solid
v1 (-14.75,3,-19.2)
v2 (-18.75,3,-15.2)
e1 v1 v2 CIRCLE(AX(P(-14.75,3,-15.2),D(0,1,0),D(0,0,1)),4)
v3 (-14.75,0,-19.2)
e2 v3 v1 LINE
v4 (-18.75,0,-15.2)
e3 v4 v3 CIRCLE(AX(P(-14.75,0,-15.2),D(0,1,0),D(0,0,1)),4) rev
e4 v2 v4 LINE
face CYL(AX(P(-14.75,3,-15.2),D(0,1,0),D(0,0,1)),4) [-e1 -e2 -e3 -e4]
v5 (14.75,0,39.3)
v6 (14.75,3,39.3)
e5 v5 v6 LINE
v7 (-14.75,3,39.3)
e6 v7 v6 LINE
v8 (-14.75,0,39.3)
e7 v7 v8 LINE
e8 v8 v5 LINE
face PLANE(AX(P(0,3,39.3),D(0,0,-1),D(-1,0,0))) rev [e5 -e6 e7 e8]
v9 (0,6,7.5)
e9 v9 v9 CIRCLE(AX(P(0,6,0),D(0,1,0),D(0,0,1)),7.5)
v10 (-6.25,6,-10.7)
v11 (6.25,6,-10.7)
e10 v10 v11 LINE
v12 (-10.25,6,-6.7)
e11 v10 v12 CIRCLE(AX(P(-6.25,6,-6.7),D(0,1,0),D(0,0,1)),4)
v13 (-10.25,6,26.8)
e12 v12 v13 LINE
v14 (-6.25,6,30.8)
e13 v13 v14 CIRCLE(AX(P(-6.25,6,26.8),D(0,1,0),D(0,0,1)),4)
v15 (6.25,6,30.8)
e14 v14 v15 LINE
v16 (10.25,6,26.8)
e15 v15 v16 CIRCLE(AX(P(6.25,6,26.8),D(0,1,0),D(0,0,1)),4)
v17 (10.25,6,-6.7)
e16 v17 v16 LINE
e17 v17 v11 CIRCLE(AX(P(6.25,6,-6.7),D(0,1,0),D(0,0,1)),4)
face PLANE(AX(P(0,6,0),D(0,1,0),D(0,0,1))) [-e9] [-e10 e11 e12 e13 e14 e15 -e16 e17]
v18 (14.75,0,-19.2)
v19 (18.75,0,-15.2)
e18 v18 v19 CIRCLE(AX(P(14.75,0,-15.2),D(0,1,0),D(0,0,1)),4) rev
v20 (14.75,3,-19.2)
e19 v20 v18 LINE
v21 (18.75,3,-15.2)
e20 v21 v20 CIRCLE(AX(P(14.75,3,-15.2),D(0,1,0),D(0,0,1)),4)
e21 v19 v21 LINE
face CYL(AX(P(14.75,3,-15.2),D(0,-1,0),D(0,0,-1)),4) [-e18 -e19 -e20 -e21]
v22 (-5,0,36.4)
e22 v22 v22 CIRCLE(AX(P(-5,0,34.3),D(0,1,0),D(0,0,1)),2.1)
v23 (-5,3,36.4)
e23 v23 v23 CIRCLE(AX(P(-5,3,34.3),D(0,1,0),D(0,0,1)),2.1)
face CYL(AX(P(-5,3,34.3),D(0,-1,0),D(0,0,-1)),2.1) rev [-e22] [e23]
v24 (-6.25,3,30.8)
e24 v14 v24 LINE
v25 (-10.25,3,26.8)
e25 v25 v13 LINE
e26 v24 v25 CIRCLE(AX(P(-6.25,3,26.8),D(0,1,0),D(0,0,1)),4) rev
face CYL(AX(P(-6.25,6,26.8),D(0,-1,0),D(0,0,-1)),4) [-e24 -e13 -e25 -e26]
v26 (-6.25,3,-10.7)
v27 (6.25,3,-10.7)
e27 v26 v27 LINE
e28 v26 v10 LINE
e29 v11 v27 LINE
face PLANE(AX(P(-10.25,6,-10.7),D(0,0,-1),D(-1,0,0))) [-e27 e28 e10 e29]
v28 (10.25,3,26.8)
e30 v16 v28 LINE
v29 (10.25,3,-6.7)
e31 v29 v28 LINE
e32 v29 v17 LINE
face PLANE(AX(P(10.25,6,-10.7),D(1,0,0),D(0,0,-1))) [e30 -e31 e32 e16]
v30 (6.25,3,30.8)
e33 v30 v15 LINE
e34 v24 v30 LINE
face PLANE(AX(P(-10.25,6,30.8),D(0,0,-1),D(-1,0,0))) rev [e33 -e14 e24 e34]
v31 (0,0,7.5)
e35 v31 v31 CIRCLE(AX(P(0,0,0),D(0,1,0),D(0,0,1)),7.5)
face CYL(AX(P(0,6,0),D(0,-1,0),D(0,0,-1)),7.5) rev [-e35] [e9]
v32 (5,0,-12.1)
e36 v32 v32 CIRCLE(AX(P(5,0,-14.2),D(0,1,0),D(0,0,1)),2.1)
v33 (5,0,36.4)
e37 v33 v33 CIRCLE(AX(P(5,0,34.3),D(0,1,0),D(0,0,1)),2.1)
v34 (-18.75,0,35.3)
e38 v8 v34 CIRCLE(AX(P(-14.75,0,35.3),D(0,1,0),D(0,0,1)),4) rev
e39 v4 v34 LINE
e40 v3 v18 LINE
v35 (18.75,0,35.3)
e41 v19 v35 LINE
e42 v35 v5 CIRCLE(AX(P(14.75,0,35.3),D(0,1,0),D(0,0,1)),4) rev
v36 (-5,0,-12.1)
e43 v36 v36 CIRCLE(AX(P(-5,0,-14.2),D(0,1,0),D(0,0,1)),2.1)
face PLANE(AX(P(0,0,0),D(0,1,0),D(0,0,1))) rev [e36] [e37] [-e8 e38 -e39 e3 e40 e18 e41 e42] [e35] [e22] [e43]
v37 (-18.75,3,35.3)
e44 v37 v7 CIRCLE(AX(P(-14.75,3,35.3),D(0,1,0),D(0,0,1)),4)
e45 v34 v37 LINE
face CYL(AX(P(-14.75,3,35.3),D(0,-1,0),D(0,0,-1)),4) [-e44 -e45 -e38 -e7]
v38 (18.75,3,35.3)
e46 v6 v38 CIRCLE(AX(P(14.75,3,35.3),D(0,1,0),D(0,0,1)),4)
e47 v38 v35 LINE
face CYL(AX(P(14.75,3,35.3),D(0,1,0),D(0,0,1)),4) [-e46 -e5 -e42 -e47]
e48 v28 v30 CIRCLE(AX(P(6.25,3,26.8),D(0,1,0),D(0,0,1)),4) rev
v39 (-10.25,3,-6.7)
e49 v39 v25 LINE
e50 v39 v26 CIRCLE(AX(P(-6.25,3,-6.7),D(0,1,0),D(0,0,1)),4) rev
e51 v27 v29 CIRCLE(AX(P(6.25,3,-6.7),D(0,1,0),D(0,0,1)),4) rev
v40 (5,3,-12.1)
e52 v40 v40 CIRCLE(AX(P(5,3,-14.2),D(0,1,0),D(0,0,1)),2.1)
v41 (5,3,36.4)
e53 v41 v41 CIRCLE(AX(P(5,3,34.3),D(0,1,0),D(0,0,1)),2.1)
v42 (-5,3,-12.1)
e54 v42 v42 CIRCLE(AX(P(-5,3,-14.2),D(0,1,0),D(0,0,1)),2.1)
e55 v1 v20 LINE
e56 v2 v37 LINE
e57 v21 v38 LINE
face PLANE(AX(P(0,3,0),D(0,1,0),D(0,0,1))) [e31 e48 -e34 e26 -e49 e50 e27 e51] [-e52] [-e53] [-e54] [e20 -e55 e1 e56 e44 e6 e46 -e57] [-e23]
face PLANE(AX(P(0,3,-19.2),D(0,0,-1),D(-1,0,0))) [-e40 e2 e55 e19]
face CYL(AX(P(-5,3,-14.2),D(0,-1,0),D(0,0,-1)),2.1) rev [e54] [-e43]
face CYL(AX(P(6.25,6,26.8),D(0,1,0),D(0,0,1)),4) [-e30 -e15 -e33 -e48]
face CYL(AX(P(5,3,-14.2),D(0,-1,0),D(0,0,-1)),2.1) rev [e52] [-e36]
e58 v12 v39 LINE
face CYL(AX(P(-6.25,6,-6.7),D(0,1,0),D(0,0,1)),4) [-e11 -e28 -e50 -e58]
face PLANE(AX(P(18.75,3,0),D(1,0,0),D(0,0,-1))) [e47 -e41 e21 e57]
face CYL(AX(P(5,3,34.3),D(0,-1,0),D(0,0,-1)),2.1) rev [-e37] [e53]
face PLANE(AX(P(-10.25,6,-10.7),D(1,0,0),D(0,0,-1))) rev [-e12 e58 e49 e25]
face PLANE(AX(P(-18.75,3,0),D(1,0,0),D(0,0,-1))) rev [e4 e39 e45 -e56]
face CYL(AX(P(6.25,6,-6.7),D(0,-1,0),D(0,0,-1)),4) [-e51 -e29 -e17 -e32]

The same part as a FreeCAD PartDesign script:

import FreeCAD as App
import Part
import Sketcher


def edges_at(feature, points):
    """Names of the edges that pass closest to the given points."""
    edges = feature.Shape.Edges
    near = lambda p: min(range(len(edges)), key=lambda i: edges[i].distToShape(Part.Vertex(*p))[0])
    return sorted({f"Edge{near(p) + 1}" for p in points})

doc = App.newDocument("Part")
body = doc.addObject("PartDesign::Body", "Body")

sketch1 = body.newObject("Sketcher::SketchObject", "Sketch")
sketch1.AttachmentSupport = (doc.getObject("XZ_Plane"), [""])
sketch1.MapMode = "FlatFace"
sketch1.addGeometry([
    Part.LineSegment(App.Vector(-10, -11, 0), App.Vector(-10, 31, 0)),
    Part.LineSegment(App.Vector(-10, 31, 0), App.Vector(10, 31, 0)),
    Part.LineSegment(App.Vector(10, 31, 0), App.Vector(10, -11, 0)),
    Part.LineSegment(App.Vector(10, -11, 0), App.Vector(-10, -11, 0)),
    Part.Circle(App.Vector(0, 0, 0), App.Vector(0, 0, 1), 8),
], False)
sketch1.addConstraint([
    Sketcher.Constraint("Coincident", 0, 2, 1, 1),
    Sketcher.Constraint("Coincident", 1, 2, 2, 1),
    Sketcher.Constraint("Coincident", 2, 2, 3, 1),
    Sketcher.Constraint("Coincident", 3, 2, 0, 1),
    Sketcher.Constraint("Vertical", 0),
    Sketcher.Constraint("Horizontal", 1),
    Sketcher.Constraint("Vertical", 2),
    Sketcher.Constraint("Horizontal", 3),
    Sketcher.Constraint("Coincident", 4, 3, -1, 1),
    Sketcher.Constraint("Diameter", 4, 15.0),
    Sketcher.Constraint("DistanceX", 1, 1, 1, 2, 20.5),
    Sketcher.Constraint("DistanceY", 0, 1, 0, 2, 41.5),
    Sketcher.Constraint("DistanceY", -1, 1, 0, 2, 30.8),
    Sketcher.Constraint("DistanceX", 0, 2, -1, 1, 10.25),
])
pad1 = body.newObject("PartDesign::Pad", "Pad")
pad1.Profile = sketch1
pad1.Length = 6
pad1.Reversed = True

sketch2 = body.newObject("Sketcher::SketchObject", "Sketch001")
sketch2.AttachmentSupport = (doc.getObject("XZ_Plane"), [""])
sketch2.MapMode = "FlatFace"
sketch2.addGeometry([
    Part.LineSegment(App.Vector(-18.8, -19.2, 0), App.Vector(-18.8, 39.3, 0)),
    Part.LineSegment(App.Vector(-18.8, 39.3, 0), App.Vector(18.8, 39.3, 0)),
    Part.LineSegment(App.Vector(18.8, 39.3, 0), App.Vector(18.8, -19.2, 0)),
    Part.LineSegment(App.Vector(18.8, -19.2, 0), App.Vector(-18.8, -19.2, 0)),
    Part.Circle(App.Vector(-5, 34.3, 0), App.Vector(0, 0, 1), 2.1),
    Part.Circle(App.Vector(5, 34.3, 0), App.Vector(0, 0, 1), 2.1),
    Part.LineSegment(App.Vector(10.2, 30.8, 0), App.Vector(-10.2, 30.8, 0)),
    Part.LineSegment(App.Vector(-10.2, 30.8, 0), App.Vector(-10.2, -10.7, 0)),
    Part.LineSegment(App.Vector(-10.2, -10.7, 0), App.Vector(10.2, -10.7, 0)),
    Part.LineSegment(App.Vector(10.2, -10.7, 0), App.Vector(10.2, 30.8, 0)),
    Part.Circle(App.Vector(-5, -14.2, 0), App.Vector(0, 0, 1), 2.1),
    Part.Circle(App.Vector(5, -14.2, 0), App.Vector(0, 0, 1), 2.1),
], False)
sketch2.addConstraint([
    Sketcher.Constraint("Coincident", 0, 2, 1, 1),
    Sketcher.Constraint("Coincident", 1, 2, 2, 1),
    Sketcher.Constraint("Coincident", 2, 2, 3, 1),
    Sketcher.Constraint("Coincident", 3, 2, 0, 1),
    Sketcher.Constraint("Coincident", 6, 2, 7, 1),
    Sketcher.Constraint("Coincident", 7, 2, 8, 1),
    Sketcher.Constraint("Coincident", 8, 2, 9, 1),
    Sketcher.Constraint("Coincident", 9, 2, 6, 1),
    Sketcher.Constraint("Vertical", 0),
    Sketcher.Constraint("Horizontal", 1),
    Sketcher.Constraint("Vertical", 2),
    Sketcher.Constraint("Horizontal", 3),
    Sketcher.Constraint("Horizontal", 6),
    Sketcher.Constraint("Vertical", 7),
    Sketcher.Constraint("Horizontal", 8),
    Sketcher.Constraint("Vertical", 9),
    Sketcher.Constraint("Equal", 4, 5),
    Sketcher.Constraint("Equal", 5, 10),
    Sketcher.Constraint("Equal", 10, 11),
    Sketcher.Constraint("Symmetric", 4, 3, 5, 3, -2),
    Sketcher.Constraint("Symmetric", 10, 3, 11, 3, -2),
    Sketcher.Constraint("Vertical", 4, 3, 10, 3),
    Sketcher.Constraint("Diameter", 4, 4.2),
    Sketcher.Constraint("DistanceX", 1, 1, 1, 2, 37.5),
    Sketcher.Constraint("DistanceX", 6, 2, 6, 1, 20.5),
    Sketcher.Constraint("DistanceY", 0, 1, 0, 2, 58.5),
    Sketcher.Constraint("DistanceY", 7, 2, 7, 1, 41.5),
    Sketcher.Constraint("DistanceX", 4, 3, -1, 1, 5.0),
    Sketcher.Constraint("DistanceY", 4, 3, 0, 2, 5.0),
    Sketcher.Constraint("DistanceY", 2, 2, 11, 3, 5.0),
    Sketcher.Constraint("DistanceX", 6, 2, 1, 2, 29.0),
    Sketcher.Constraint("DistanceY", 10, 3, 6, 2, 45.0),
    Sketcher.Constraint("DistanceY", -1, 1, 4, 3, 34.3),
    Sketcher.Constraint("DistanceX", 0, 2, -1, 1, 18.75),
])
pad2 = body.newObject("PartDesign::Pad", "Pad001")
pad2.Profile = sketch2
pad2.Length = 3
pad2.Reversed = True
doc.recompute()

fillet = body.newObject("PartDesign::Fillet", "Fillet")
fillet.Base = (pad2, edges_at(pad2, [
    (18.75, 1.5, 39.3),
    (18.75, 1.5, -19.2),
    (-18.75, 1.5, -19.2),
    (-18.75, 1.5, 39.3),
    (-10.25, 4.5, -10.7),
    (10.25, 4.5, -10.7),
    (10.25, 4.5, 30.8),
    (-10.25, 4.5, 30.8),
]))
fillet.Radius = 4

doc.recompute()
